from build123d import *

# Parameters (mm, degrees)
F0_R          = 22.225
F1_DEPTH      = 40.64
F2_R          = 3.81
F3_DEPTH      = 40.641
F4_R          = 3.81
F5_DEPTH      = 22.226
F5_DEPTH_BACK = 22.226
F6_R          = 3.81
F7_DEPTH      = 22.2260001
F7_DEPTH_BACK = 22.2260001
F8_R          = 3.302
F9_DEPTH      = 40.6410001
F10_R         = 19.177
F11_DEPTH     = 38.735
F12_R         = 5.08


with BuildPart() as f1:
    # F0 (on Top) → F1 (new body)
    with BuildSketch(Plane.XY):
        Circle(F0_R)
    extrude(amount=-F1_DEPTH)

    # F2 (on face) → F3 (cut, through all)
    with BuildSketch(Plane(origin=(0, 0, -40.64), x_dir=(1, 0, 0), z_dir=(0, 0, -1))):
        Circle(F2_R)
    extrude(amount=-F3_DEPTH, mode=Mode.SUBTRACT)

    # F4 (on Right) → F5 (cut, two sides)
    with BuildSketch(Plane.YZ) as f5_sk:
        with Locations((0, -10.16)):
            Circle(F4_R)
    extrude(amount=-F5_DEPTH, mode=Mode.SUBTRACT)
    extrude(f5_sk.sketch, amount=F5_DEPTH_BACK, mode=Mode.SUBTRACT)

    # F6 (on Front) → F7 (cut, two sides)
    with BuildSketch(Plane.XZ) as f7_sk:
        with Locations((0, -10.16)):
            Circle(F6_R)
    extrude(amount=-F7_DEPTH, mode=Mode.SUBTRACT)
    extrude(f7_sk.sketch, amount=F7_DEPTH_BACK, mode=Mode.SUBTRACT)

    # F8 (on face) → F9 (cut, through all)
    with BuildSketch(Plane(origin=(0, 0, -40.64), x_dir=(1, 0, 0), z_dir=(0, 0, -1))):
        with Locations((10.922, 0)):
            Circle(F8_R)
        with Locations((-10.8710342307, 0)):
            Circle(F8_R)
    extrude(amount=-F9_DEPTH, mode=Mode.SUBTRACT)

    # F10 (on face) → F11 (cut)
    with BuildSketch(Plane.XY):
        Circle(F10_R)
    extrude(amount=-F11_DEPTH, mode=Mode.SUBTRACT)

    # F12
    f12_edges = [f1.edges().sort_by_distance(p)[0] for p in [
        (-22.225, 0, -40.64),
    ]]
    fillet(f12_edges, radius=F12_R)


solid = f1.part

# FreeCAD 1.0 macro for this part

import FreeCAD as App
import Part
import Sketcher

V = App.Vector
Q = App.Units.Quantity


def edges_at(feature, points):
    """Names of the edges that pass closest to the given points."""
    edges = feature.Shape.Edges
    near = lambda p: min(range(len(edges)), key=lambda i: edges[i].distToShape(Part.Vertex(*p))[0])
    return sorted({f"Edge{near(p) + 1}" for p in points})

doc = App.newDocument("Part")
body = doc.addObject("PartDesign::Body", "Body")

# Sketch on XY plane
sketch1 = body.newObject("Sketcher::SketchObject", "Sketch")
sketch1.AttachmentSupport = (doc.getObject("XY_Plane"), [""])
sketch1.MapMode = "FlatFace"
sketch1.addGeometry(Part.Circle(V(0, 0, 0), V(0, 0, 1), 22.225), False)
sketch1.addConstraint([
    Sketcher.Constraint("Coincident", 0, 3, -1, 1),
    Sketcher.Constraint("Diameter", 0, Q("1.75 in")),
])
pad1 = body.newObject("PartDesign::Pad", "Pad")
pad1.Profile = sketch1
pad1.Length = Q("1.6 in")
pad1.Reversed = True

# Sketch on XY plane
sketch2 = body.newObject("Sketcher::SketchObject", "Sketch001")
sketch2.AttachmentSupport = (doc.getObject("XY_Plane"), [""])
sketch2.MapMode = "FlatFace"
sketch2.AttachmentOffset = App.Placement(V(0, 0, -1.6 * 25.4), App.Rotation())
sketch2.addGeometry(Part.Circle(V(0, 0, 0), V(0, 0, 1), 3.81), False)
sketch2.addConstraint([
    Sketcher.Constraint("Coincident", 0, 3, -1, 1),
    Sketcher.Constraint("Diameter", 0, Q("0.3 in")),
])
pocket1 = body.newObject("PartDesign::Pocket", "Pocket")
pocket1.Profile = sketch2
pocket1.Type = "ThroughAll"
pocket1.Reversed = True

# Sketch on YZ plane
sketch3 = body.newObject("Sketcher::SketchObject", "Sketch002")
sketch3.AttachmentSupport = (doc.getObject("YZ_Plane"), [""])
sketch3.MapMode = "FlatFace"
sketch3.addGeometry(Part.Circle(V(0, -10.16, 0), V(0, 0, 1), 3.81), False)
sketch3.addConstraint([
    Sketcher.Constraint("PointOnObject", 0, 3, -2),
    Sketcher.Constraint("Diameter", 0, Q("0.3 in")),
    Sketcher.Constraint("DistanceY", 0, 3, -1, 1, Q("0.4 in")),
])
pocket2 = body.newObject("PartDesign::Pocket", "Pocket001")
pocket2.Profile = sketch3
pocket2.Type = "ThroughAll"
pocket2.Midplane = True

# Sketch on XZ plane
sketch4 = body.newObject("Sketcher::SketchObject", "Sketch003")
sketch4.AttachmentSupport = (doc.getObject("XZ_Plane"), [""])
sketch4.MapMode = "FlatFace"
sketch4.addGeometry(Part.Circle(V(0, -10.16, 0), V(0, 0, 1), 3.81), False)
sketch4.addConstraint([
    Sketcher.Constraint("PointOnObject", 0, 3, -2),
    Sketcher.Constraint("Diameter", 0, Q("0.3 in")),
    Sketcher.Constraint("DistanceY", 0, 3, -1, 1, Q("0.4 in")),
])
pocket3 = body.newObject("PartDesign::Pocket", "Pocket002")
pocket3.Profile = sketch4
pocket3.Type = "ThroughAll"
pocket3.Midplane = True

# Sketch on XY plane
sketch5 = body.newObject("Sketcher::SketchObject", "Sketch004")
sketch5.AttachmentSupport = (doc.getObject("XY_Plane"), [""])
sketch5.MapMode = "FlatFace"
sketch5.AttachmentOffset = App.Placement(V(0, 0, -1.6 * 25.4), App.Rotation())
sketch5.addGeometry([
    Part.Circle(V(10.922, 0, 0), V(0, 0, 1), 3.302),
    Part.Circle(V(-10.871034, 0, 0), V(0, 0, 1), 3.302),
], False)
sketch5.addConstraint([
    Sketcher.Constraint("Equal", 0, 1),
    Sketcher.Constraint("PointOnObject", 0, 3, -1),
    Sketcher.Constraint("PointOnObject", 1, 3, -1),
    Sketcher.Constraint("Diameter", 0, Q("0.26 in")),
    Sketcher.Constraint("DistanceX", -1, 1, 0, 3, Q("0.43 in")),
    Sketcher.Constraint("DistanceX", 1, 3, -1, 1, 10.871034),
])
pocket4 = body.newObject("PartDesign::Pocket", "Pocket003")
pocket4.Profile = sketch5
pocket4.Type = "ThroughAll"
pocket4.Reversed = True

# Sketch on XY plane
sketch6 = body.newObject("Sketcher::SketchObject", "Sketch005")
sketch6.AttachmentSupport = (doc.getObject("XY_Plane"), [""])
sketch6.MapMode = "FlatFace"
sketch6.addGeometry(Part.Circle(V(0, 0, 0), V(0, 0, 1), 19.177), False)
sketch6.addConstraint([
    Sketcher.Constraint("Coincident", 0, 3, -1, 1),
    Sketcher.Constraint("Diameter", 0, Q("1.51 in")),
])
pocket5 = body.newObject("PartDesign::Pocket", "Pocket004")
pocket5.Profile = sketch6
pocket5.Length = Q("1.525 in")
doc.recompute()

fillet = body.newObject("PartDesign::Fillet", "Fillet")
fillet.Base = (pocket5, edges_at(pocket5, [(-22.225, 0, -40.64)]))
fillet.Radius = Q("0.2 in")

doc.recompute()
